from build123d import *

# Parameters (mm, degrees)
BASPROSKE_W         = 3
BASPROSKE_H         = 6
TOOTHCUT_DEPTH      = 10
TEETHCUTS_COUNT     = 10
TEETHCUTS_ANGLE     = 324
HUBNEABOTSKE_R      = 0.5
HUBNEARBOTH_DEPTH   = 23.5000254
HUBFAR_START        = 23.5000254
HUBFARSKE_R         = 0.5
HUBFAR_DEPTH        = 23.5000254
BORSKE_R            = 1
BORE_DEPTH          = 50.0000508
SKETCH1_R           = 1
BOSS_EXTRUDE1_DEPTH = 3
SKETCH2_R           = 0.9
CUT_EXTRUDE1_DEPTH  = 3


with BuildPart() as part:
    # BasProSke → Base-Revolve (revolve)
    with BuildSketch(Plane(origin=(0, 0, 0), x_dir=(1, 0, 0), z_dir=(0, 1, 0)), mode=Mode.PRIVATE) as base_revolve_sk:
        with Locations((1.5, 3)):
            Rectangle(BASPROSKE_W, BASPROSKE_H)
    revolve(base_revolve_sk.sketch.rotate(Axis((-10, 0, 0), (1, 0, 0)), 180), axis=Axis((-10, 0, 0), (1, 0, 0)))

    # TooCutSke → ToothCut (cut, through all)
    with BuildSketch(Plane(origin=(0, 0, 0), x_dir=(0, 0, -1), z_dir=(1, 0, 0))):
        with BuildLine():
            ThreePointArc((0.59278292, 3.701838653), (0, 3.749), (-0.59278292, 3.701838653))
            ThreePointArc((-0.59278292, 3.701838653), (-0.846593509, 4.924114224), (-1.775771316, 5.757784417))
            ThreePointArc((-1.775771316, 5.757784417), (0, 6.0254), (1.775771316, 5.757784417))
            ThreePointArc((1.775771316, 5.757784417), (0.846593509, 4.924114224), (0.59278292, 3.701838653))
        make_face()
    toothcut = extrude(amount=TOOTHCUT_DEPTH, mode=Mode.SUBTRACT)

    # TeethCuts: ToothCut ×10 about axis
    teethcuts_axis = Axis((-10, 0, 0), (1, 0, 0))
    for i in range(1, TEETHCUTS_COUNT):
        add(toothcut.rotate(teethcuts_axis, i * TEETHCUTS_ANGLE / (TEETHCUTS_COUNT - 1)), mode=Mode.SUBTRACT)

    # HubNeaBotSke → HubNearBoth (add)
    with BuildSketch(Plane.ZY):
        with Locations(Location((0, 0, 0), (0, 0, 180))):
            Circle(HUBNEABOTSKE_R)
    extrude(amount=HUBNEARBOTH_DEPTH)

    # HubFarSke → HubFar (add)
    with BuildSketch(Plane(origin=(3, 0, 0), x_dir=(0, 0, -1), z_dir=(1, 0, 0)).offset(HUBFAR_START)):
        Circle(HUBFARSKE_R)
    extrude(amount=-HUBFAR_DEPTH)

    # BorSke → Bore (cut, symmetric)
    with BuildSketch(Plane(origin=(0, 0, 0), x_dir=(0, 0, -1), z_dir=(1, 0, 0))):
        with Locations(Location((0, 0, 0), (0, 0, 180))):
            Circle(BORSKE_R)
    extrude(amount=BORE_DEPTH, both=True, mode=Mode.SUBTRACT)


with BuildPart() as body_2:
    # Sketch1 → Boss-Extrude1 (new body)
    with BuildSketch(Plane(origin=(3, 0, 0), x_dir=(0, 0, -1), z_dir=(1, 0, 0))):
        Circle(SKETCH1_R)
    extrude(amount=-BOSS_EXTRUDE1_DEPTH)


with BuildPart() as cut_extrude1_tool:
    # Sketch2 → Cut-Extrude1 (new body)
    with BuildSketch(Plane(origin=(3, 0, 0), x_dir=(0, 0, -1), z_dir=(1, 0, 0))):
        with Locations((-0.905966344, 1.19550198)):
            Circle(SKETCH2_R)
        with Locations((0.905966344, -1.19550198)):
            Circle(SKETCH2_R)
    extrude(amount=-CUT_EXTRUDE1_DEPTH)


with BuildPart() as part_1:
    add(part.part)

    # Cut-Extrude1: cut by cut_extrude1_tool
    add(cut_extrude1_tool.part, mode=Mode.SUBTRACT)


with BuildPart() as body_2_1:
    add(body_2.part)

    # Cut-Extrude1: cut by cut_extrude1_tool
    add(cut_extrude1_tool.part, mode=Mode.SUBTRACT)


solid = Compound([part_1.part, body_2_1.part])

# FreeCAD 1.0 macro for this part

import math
import FreeCAD as App
import Part
import Sketcher
Q = App.Units.Quantity

doc = App.newDocument("Part")
body = doc.addObject("PartDesign::Body", "Body")

sketch1 = body.newObject("Sketcher::SketchObject", "Sketch")
sketch1.AttachmentSupport = (doc.getObject("XZ_Plane"), [""])
sketch1.MapMode = "FlatFace"
sketch1.addGeometry([
    Part.LineSegment(App.Vector(0, -6, 0), App.Vector(0, 0, 0)),
    Part.LineSegment(App.Vector(0, 0, 0), App.Vector(3, 0, 0)),
    Part.LineSegment(App.Vector(3, 0, 0), App.Vector(3, -6, 0)),
    Part.LineSegment(App.Vector(3, -6, 0), App.Vector(0, -6, 0)),
], False)
sketch1.addConstraint([
    Sketcher.Constraint("Coincident", 0, 2, 1, 1),
    Sketcher.Constraint("Coincident", 1, 2, 2, 1),
    Sketcher.Constraint("Coincident", 2, 2, 3, 1),
    Sketcher.Constraint("Coincident", 3, 2, 0, 1),
    Sketcher.Constraint("Vertical", 0),
    Sketcher.Constraint("Horizontal", 1),
    Sketcher.Constraint("Vertical", 2),
    Sketcher.Constraint("Horizontal", 3),
    Sketcher.Constraint("Coincident", 0, 2, -1, 1),
    Sketcher.Constraint("DistanceX", 1, 1, 1, 2, Q("3 mm")),
    Sketcher.Constraint("DistanceY", 0, 1, 0, 2, Q("6 mm")),
])
revolution = body.newObject("PartDesign::Revolution", "Revolution")
revolution.Profile = sketch1
revolution.ReferenceAxis = (sketch1, ["H_Axis"])
revolution.Angle = 360

sketch2 = body.newObject("Sketcher::SketchObject", "Sketch001")
sketch2.AttachmentSupport = (doc.getObject("YZ_Plane"), [""])
sketch2.MapMode = "FlatFace"
sketch2.addGeometry([
    Part.ArcOfCircle(Part.Circle(App.Vector(0, 0, 0), App.Vector(0, 0, 1), 3.7), math.radians(-9.1), math.radians(9.1)),
    Part.ArcOfCircle(Part.Circle(App.Vector(3.9, -2.6, 0), App.Vector(0, 0, 1), 2), math.radians(24), math.radians(96)),
    Part.ArcOfCircle(Part.Circle(App.Vector(0, 0, 0), App.Vector(0, 0, 1), 6), math.radians(-17), math.radians(17)),
    Part.ArcOfCircle(Part.Circle(App.Vector(3.9, 2.6, 0), App.Vector(0, 0, 1), 2), math.radians(-96), math.radians(-24)),
], False)
sketch2.addConstraint([
    Sketcher.Constraint("Coincident", 0, 1, 1, 2),
    Sketcher.Constraint("Coincident", 1, 1, 2, 1),
    Sketcher.Constraint("Coincident", 2, 2, 3, 2),
    Sketcher.Constraint("Coincident", 3, 1, 0, 2),
    Sketcher.Constraint("Coincident", 0, 3, -1, 1),
    Sketcher.Constraint("Coincident", 2, 3, -1, 1),
    Sketcher.Constraint("Equal", 1, 3),
    Sketcher.Constraint("Symmetric", 1, 3, 3, 3, -1),
    Sketcher.Constraint("Radius", 1, Q("2 mm")),
    Sketcher.Constraint("Radius", 0, Q("3.749 mm")),
    Sketcher.Constraint("Radius", 2, Q("6.0254 mm")),
    Sketcher.Constraint("DistanceX", -1, 1, 0, 1, Q("3.701839 mm")),
    Sketcher.Constraint("DistanceY", 1, 1, -1, 1, Q("1.775771 mm")),
])
pocket1 = body.newObject("PartDesign::Pocket", "Pocket")
pocket1.Profile = sketch2
pocket1.Type = "ThroughAll"
pocket1.Reversed = True
doc.recompute()

polarpattern = body.newObject("PartDesign::PolarPattern", "PolarPattern")
polarpattern.Originals = [pocket1]
polarpattern.Axis = (doc.getObject("X_Axis"), [""])
polarpattern.Angle = 360
polarpattern.Occurrences = 10
body.Tip = polarpattern

sketch3 = body.newObject("Sketcher::SketchObject", "Sketch002")
sketch3.AttachmentSupport = (doc.getObject("YZ_Plane"), [""])
sketch3.MapMode = "FlatFace"
sketch3.addGeometry(Part.Circle(App.Vector(0, 0, 0), App.Vector(0, 0, 1), 0.5), False)
sketch3.addConstraint([
    Sketcher.Constraint("Coincident", 0, 3, -1, 1),
    Sketcher.Constraint("Diameter", 0, Q("1 mm")),
])
pad1 = body.newObject("PartDesign::Pad", "Pad")
pad1.Profile = sketch3
pad1.Length = 23.500025
pad1.Reversed = True

sketch4 = body.newObject("Sketcher::SketchObject", "Sketch003")
sketch4.AttachmentSupport = (doc.getObject("YZ_Plane"), [""])
sketch4.MapMode = "FlatFace"
sketch4.AttachmentOffset = App.Placement(App.Vector(0, 0, 26.500025), App.Rotation())
sketch4.addGeometry(Part.Circle(App.Vector(0, 0, 0), App.Vector(0, 0, 1), 0.5), False)
sketch4.addConstraint([
    Sketcher.Constraint("Coincident", 0, 3, -1, 1),
    Sketcher.Constraint("Diameter", 0, Q("1 mm")),
])
pad2 = body.newObject("PartDesign::Pad", "Pad001")
pad2.Profile = sketch4
pad2.Length = 23.500025
pad2.Reversed = True

sketch5 = body.newObject("Sketcher::SketchObject", "Sketch004")
sketch5.AttachmentSupport = (doc.getObject("YZ_Plane"), [""])
sketch5.MapMode = "FlatFace"
sketch5.addGeometry(Part.Circle(App.Vector(0, 0, 0), App.Vector(0, 0, 1), 1), False)
sketch5.addConstraint([
    Sketcher.Constraint("Coincident", 0, 3, -1, 1),
    Sketcher.Constraint("Diameter", 0, Q("2 mm")),
])
pocket2 = body.newObject("PartDesign::Pocket", "Pocket001")
pocket2.Profile = sketch5
pocket2.Length = 100.000102
pocket2.Midplane = True
body2 = doc.addObject("PartDesign::Body", "Body001")

sketch6 = body2.newObject("Sketcher::SketchObject", "Sketch005")
sketch6.AttachmentSupport = (doc.getObject("YZ_Plane001"), [""])
sketch6.MapMode = "FlatFace"
sketch6.AttachmentOffset = App.Placement(App.Vector(0, 0, 3), App.Rotation())
sketch6.addGeometry(Part.Circle(App.Vector(0, 0, 0), App.Vector(0, 0, 1), 1), False)
sketch6.addConstraint([
    Sketcher.Constraint("Coincident", 0, 3, -1, 1),
    Sketcher.Constraint("Diameter", 0, Q("2 mm")),
])
pad3 = body2.newObject("PartDesign::Pad", "Pad002")
pad3.Profile = sketch6
pad3.Length = 3
pad3.Reversed = True
body3 = doc.addObject("PartDesign::Body", "Body002")
body3.AllowCompound = True

sketch7 = body3.newObject("Sketcher::SketchObject", "Sketch006")
sketch7.AttachmentSupport = (doc.getObject("YZ_Plane002"), [""])
sketch7.MapMode = "FlatFace"
sketch7.AttachmentOffset = App.Placement(App.Vector(0, 0, 3), App.Rotation())
sketch7.addGeometry([
    Part.Circle(App.Vector(1.2, 0.9, 0), App.Vector(0, 0, 1), 0.9),
    Part.Circle(App.Vector(-1.2, -0.9, 0), App.Vector(0, 0, 1), 0.9),
], False)
sketch7.addConstraint([
    Sketcher.Constraint("Equal", 0, 1),
    Sketcher.Constraint("Symmetric", 0, 3, 1, 3, -1, 1),
    Sketcher.Constraint("Diameter", 0, Q("1.8 mm")),
    Sketcher.Constraint("DistanceX", -1, 1, 0, 3, Q("1.195502 mm")),
    Sketcher.Constraint("DistanceY", -1, 1, 0, 3, Q("0.905966 mm")),
])
pad4 = body3.newObject("PartDesign::Pad", "Pad003")
pad4.Profile = sketch7
pad4.Length = 3
pad4.Reversed = True
doc.recompute()

body4 = doc.addObject("PartDesign::Body", "Body003")
body4.BaseFeature = body3
boolean = body.newObject("PartDesign::Boolean", "Boolean")
boolean.Type = "Cut"
boolean.addObjects([body4])
doc.recompute()

boolean2 = body2.newObject("PartDesign::Boolean", "Boolean001")
boolean2.Type = "Cut"
boolean2.addObjects([body3])

doc.recompute()
